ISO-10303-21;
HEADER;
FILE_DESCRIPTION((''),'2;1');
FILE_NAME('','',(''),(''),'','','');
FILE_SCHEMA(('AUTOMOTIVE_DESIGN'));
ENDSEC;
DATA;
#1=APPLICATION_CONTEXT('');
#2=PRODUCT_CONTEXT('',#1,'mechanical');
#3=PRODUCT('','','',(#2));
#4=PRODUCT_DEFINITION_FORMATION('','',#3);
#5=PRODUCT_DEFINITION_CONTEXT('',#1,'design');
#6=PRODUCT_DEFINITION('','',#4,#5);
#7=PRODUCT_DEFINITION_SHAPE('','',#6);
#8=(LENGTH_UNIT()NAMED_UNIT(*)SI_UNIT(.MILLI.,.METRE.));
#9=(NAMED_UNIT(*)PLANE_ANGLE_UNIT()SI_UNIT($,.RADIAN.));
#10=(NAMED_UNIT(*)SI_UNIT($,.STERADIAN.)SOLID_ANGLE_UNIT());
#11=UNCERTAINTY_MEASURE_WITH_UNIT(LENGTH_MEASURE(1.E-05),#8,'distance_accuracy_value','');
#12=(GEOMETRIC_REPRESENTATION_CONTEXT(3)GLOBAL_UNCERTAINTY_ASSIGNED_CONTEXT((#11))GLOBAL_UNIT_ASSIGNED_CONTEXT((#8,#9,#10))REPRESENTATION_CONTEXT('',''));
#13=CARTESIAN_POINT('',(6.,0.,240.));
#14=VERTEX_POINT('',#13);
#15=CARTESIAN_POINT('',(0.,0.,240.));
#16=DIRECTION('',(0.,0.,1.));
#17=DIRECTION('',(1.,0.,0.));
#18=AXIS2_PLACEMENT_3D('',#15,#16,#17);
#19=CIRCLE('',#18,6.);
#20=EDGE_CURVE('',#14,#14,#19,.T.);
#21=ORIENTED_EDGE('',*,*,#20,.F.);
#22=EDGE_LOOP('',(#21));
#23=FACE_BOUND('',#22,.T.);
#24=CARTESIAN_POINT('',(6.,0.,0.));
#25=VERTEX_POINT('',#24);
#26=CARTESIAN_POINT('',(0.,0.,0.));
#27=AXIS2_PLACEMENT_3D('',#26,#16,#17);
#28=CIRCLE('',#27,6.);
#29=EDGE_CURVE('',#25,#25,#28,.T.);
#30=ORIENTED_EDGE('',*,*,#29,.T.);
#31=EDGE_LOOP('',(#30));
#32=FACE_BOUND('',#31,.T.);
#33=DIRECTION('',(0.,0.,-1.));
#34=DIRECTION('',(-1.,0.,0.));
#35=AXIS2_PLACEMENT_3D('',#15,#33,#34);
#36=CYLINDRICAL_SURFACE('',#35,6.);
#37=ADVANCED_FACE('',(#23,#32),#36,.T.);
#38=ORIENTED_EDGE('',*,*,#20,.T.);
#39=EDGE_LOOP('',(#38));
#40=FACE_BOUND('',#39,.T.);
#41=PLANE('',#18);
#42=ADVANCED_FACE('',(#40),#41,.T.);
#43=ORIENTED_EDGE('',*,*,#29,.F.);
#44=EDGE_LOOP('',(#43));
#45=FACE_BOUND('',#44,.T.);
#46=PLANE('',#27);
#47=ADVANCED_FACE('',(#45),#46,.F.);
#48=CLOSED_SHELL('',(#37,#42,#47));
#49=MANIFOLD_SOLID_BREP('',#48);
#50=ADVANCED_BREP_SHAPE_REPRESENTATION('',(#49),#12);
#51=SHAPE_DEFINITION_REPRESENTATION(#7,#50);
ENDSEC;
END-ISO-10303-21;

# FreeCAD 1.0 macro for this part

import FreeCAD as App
import Part
import Sketcher
from FreeCAD import Vector
Q = App.Units.Quantity

doc = App.newDocument("Part")
params = doc.addObject("Spreadsheet::Sheet", "Params")
for row, (alias, value) in enumerate([
    ("sketch1_diameter", "12 mm"),
    ("pad1_length", "240 mm"),
], start=1):
    params.set(f"A{row}", alias)
    params.set(f"B{row}", "=" + value)
    params.setAlias(f"B{row}", alias)

body = doc.addObject("PartDesign::Body", "Body")

sketch1 = doc.addObject("Sketcher::SketchObject", "Sketch")
body.addObject(sketch1)
sketch1.AttachmentSupport = (doc.XY_Plane, [""])
sketch1.MapMode = "FlatFace"
sketch1.addGeometry(Part.Circle(Vector(0, 0, 0), Vector(0, 0, 1), 6), False)
sketch1.addConstraint(Sketcher.Constraint("Coincident", 0, 3, -1, 1))
sketch1.addConstraint(Sketcher.Constraint("Diameter", 0, Q("12 mm")))
sketch1.setExpression("Constraints[1]", "Params.sketch1_diameter")
pad1 = doc.addObject("PartDesign::Pad", "Pad")
body.addObject(pad1)
pad1.Profile = sketch1
pad1.setExpression("Length", "Params.pad1_length")

doc.recompute()
